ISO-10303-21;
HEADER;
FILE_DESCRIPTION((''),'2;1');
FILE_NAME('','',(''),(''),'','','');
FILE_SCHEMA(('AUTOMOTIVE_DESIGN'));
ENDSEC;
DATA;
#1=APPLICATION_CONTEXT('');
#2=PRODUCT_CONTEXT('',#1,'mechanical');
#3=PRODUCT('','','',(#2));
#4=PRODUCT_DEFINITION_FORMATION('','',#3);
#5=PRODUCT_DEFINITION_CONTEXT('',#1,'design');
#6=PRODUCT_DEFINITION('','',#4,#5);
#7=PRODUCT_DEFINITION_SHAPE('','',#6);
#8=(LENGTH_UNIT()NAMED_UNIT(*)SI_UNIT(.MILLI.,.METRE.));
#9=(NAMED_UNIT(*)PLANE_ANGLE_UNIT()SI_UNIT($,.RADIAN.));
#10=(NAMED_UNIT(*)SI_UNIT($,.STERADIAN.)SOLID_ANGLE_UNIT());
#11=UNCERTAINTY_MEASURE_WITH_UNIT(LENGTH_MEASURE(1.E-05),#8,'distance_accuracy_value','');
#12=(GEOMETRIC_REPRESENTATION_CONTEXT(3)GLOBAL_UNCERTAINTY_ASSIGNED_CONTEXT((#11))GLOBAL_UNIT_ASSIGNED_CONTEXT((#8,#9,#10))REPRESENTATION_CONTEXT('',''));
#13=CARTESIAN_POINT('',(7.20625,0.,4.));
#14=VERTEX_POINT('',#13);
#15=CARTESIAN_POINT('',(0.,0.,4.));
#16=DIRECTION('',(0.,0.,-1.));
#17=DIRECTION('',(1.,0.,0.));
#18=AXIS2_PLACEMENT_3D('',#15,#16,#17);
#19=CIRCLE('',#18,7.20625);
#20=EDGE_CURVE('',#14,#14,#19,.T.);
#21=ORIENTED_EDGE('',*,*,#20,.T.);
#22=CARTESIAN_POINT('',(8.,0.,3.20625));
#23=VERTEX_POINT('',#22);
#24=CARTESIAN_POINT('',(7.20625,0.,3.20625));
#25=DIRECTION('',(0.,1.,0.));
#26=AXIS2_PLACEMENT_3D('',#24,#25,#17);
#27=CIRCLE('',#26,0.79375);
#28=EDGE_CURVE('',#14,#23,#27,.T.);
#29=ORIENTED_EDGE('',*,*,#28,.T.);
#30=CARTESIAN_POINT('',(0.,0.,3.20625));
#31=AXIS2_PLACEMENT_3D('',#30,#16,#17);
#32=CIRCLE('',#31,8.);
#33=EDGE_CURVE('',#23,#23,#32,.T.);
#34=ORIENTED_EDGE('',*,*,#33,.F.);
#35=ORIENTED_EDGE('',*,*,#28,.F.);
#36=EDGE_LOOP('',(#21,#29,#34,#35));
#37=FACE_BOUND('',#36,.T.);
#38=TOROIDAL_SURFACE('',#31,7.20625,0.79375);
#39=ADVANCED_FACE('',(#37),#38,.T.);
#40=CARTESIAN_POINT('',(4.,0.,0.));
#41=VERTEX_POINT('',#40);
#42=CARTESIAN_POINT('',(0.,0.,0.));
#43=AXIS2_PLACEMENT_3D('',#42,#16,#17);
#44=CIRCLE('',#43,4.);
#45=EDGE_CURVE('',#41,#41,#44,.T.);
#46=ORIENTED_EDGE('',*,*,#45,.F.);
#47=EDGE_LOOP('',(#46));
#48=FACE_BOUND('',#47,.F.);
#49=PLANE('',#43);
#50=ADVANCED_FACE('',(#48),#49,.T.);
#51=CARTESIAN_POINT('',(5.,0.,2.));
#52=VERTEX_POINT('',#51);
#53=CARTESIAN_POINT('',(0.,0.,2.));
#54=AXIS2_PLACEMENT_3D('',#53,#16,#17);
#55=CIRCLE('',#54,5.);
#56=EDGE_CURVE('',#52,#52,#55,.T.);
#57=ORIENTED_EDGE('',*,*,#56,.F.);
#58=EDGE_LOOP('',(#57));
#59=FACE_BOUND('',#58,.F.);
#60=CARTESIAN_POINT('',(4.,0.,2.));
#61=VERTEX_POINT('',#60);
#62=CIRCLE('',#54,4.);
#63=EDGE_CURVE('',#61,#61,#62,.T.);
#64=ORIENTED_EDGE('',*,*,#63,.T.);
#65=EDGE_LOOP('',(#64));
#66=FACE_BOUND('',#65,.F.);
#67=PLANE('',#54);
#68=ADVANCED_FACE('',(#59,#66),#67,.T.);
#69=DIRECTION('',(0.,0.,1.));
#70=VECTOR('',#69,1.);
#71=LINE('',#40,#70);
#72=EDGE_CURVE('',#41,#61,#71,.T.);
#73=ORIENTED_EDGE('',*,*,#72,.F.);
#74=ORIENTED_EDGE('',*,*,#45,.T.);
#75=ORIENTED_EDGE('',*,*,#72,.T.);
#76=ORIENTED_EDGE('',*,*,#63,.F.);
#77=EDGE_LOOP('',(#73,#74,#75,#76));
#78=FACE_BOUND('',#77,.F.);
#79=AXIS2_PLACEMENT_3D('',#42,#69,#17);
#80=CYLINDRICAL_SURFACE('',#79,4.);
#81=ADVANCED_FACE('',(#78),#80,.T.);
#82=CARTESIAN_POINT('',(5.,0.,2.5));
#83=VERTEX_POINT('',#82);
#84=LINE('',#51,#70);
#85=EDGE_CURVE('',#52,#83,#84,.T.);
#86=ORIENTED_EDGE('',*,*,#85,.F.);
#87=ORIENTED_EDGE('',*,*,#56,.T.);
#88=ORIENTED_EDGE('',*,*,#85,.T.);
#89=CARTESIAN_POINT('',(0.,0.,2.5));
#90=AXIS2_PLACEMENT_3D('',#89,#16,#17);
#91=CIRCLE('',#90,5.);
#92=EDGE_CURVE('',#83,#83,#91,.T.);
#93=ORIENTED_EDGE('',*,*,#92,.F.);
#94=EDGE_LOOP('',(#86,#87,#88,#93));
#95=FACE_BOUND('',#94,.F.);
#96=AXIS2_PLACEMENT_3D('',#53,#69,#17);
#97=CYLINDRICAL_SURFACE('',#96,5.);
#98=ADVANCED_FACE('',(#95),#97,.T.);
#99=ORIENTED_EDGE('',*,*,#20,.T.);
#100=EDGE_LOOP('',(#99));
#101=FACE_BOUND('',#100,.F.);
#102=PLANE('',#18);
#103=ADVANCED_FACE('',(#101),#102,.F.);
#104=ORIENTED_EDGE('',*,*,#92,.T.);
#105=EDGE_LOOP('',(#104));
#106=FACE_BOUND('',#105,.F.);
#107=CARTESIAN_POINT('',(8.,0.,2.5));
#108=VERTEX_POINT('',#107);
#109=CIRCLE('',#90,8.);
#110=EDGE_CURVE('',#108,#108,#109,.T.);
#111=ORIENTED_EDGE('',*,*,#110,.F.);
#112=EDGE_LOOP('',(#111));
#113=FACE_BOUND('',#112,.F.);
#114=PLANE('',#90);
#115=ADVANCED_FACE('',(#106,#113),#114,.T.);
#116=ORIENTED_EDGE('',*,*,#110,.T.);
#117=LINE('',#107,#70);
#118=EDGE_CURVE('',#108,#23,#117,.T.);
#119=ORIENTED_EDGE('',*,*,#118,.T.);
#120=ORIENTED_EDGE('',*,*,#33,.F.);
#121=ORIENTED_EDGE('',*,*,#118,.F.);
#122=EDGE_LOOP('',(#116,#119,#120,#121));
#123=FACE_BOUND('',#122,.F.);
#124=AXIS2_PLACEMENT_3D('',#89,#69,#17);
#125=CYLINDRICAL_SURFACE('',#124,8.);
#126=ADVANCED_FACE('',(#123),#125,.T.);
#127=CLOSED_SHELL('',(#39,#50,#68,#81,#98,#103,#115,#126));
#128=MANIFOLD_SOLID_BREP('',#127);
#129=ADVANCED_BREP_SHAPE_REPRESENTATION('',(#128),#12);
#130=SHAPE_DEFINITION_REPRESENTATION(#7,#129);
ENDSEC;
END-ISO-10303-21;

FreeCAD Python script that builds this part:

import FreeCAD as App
import Part
import Sketcher
from FreeCAD import Vector


def edges_at(feature, points):
    """Names of the edges that pass closest to the given points."""
    edges = feature.Shape.Edges
    near = lambda p: min(range(len(edges)), key=lambda i: edges[i].distToShape(Part.Vertex(*p))[0])
    return sorted({f"Edge{near(p) + 1}" for p in points})

doc = App.newDocument("Part")
body = doc.addObject("PartDesign::Body", "Body")

# Sketch on XZ plane
sketch1 = body.newObject("Sketcher::SketchObject", "Sketch")
sketch1.AttachmentSupport = (doc.getObject("XZ_Plane"), [""])
sketch1.MapMode = "FlatFace"
sketch1.addGeometry([
    Part.LineSegment(Vector(8, 4, 0), Vector(0, 4, 0)),  # 0
    Part.LineSegment(Vector(0, 4, 0), Vector(0, 0, 0)),  # 1
    Part.LineSegment(Vector(0, 0, 0), Vector(4, 0, 0)),  # 2
    Part.LineSegment(Vector(4, 0, 0), Vector(4, 2, 0)),  # 3
    Part.LineSegment(Vector(4, 2, 0), Vector(5, 2, 0)),  # 4
    Part.LineSegment(Vector(5, 2, 0), Vector(5, 2.5, 0)),  # 5
    Part.LineSegment(Vector(5, 2.5, 0), Vector(8, 2.5, 0)),  # 6
    Part.LineSegment(Vector(8, 2.5, 0), Vector(8, 4, 0)),  # 7
], False)
sketch1.addConstraint([
    Sketcher.Constraint("Coincident", 0, 2, 1, 1),
    Sketcher.Constraint("Coincident", 1, 2, 2, 1),
    Sketcher.Constraint("Coincident", 2, 2, 3, 1),
    Sketcher.Constraint("Coincident", 3, 2, 4, 1),
    Sketcher.Constraint("Coincident", 4, 2, 5, 1),
    Sketcher.Constraint("Coincident", 5, 2, 6, 1),
    Sketcher.Constraint("Coincident", 6, 2, 7, 1),
    Sketcher.Constraint("Coincident", 7, 2, 0, 1),
    Sketcher.Constraint("Horizontal", 0),
    Sketcher.Constraint("Vertical", 1),
    Sketcher.Constraint("Horizontal", 2),
    Sketcher.Constraint("Vertical", 3),
    Sketcher.Constraint("Horizontal", 4),
    Sketcher.Constraint("Vertical", 5),
    Sketcher.Constraint("Horizontal", 6),
    Sketcher.Constraint("Vertical", 7),
    Sketcher.Constraint("Coincident", 1, 2, -1, 1),
    Sketcher.Constraint("Equal", 2, 1),
    Sketcher.Constraint("DistanceX", 0, 2, 0, 1, 8.0),
    Sketcher.Constraint("DistanceX", 2, 1, 2, 2, 4.0),
    Sketcher.Constraint("DistanceX", 4, 1, 4, 2, 1.0),
    Sketcher.Constraint("DistanceY", 3, 1, 3, 2, 2.0),
    Sketcher.Constraint("DistanceY", 5, 1, 5, 2, 0.5),
])
revolution = body.newObject("PartDesign::Revolution", "Revolution")
revolution.Profile = sketch1
revolution.ReferenceAxis = (sketch1, ["V_Axis"])
revolution.Angle = 360
doc.recompute()

fillet = body.newObject("PartDesign::Fillet", "Fillet")
fillet.Base = (revolution, edges_at(revolution, [(-8, 0, 4)]))
fillet.Radius = 0.79375

doc.recompute()
